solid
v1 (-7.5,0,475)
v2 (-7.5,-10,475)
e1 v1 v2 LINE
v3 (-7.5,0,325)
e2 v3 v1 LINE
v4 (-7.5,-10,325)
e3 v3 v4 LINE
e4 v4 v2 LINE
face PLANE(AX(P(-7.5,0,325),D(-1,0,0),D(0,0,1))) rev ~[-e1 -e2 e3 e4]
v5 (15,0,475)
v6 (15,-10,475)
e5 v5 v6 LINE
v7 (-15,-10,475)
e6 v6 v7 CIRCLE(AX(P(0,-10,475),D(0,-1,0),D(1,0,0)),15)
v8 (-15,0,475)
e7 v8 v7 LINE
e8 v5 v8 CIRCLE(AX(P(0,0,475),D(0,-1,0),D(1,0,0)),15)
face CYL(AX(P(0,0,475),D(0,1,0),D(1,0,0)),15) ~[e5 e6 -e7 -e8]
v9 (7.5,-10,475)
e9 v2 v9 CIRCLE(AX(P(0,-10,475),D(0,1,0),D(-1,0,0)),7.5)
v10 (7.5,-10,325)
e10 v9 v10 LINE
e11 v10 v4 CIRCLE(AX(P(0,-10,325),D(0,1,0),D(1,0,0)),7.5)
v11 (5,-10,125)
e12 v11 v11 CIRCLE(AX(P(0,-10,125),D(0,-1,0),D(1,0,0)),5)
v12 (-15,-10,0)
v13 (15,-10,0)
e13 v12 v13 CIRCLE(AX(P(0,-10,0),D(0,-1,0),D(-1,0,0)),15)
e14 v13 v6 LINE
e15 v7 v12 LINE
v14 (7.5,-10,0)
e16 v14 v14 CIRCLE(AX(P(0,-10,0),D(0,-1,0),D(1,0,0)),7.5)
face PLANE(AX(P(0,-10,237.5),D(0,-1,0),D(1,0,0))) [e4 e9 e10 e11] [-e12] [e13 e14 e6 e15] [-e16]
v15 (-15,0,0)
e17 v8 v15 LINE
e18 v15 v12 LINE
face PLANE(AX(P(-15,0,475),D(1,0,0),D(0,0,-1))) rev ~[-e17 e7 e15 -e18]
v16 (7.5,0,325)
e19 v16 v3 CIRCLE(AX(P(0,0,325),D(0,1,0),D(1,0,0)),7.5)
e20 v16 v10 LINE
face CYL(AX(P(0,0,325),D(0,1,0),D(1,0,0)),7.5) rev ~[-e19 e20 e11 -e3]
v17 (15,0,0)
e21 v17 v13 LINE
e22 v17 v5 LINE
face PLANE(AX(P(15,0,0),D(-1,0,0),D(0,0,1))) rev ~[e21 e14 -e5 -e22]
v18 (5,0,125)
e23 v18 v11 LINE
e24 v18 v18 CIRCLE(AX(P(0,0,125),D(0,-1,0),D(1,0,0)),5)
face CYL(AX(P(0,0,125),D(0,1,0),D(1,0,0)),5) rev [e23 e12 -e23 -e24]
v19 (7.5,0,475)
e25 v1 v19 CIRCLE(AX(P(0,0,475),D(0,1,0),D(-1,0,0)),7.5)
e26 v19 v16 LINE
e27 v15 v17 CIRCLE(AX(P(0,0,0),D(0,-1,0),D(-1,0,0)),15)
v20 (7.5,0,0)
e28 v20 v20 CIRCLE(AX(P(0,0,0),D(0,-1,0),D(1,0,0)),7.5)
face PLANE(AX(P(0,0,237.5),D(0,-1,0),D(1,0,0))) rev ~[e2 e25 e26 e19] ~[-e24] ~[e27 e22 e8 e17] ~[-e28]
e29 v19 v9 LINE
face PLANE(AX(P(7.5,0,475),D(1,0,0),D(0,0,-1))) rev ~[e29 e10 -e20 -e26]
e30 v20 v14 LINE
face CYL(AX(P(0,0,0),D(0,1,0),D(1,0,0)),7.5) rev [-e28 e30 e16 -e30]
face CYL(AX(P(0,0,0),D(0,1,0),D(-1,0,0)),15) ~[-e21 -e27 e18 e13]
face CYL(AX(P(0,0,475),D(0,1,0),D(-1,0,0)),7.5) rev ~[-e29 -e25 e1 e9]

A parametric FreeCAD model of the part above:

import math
import FreeCAD as App
import Part
import Sketcher
from FreeCAD import Vector

doc = App.newDocument("Part")
body = doc.addObject("PartDesign::Body", "Body")

# Sketch on XZ plane
sketch1 = doc.addObject("Sketcher::SketchObject", "Sketch")
body.addObject(sketch1)
sketch1.AttachmentSupport = (doc.XZ_Plane, [""])
sketch1.MapMode = "FlatFace"
sketch1.addGeometry([
    Part.LineSegment(Vector(-15, 475, 0), Vector(-15, 0, 0)),  # 0
    Part.ArcOfCircle(Part.Circle(Vector(0, 0, 0), Vector(0, 0, 1), 15), math.radians(180), math.radians(360)),  # 1
    Part.LineSegment(Vector(15, 0, 0), Vector(15, 475, 0)),  # 2
    Part.ArcOfCircle(Part.Circle(Vector(0, 475, 0), Vector(0, 0, 1), 15), math.radians(0), math.radians(180)),  # 3
    Part.Circle(Vector(0, 0, 0), Vector(0, 0, 1), 7.5),  # 4
    Part.Circle(Vector(0, 125, 0), Vector(0, 0, 1), 5),  # 5
    Part.LineSegment(Vector(-7.5, 325, 0), Vector(-7.5, 475, 0)),  # 6
    Part.ArcOfCircle(Part.Circle(Vector(0, 475, 0), Vector(0, 0, 1), 7.5), math.radians(0), math.radians(180)),  # 7
    Part.LineSegment(Vector(7.5, 475, 0), Vector(7.5, 325, 0)),  # 8
    Part.ArcOfCircle(Part.Circle(Vector(0, 325, 0), Vector(0, 0, 1), 7.5), math.radians(180), math.radians(360)),  # 9
], False)
sketch1.addConstraint([
    Sketcher.Constraint("Tangent", 0, 2, 1, 1),
    Sketcher.Constraint("Tangent", 1, 2, 2, 1),
    Sketcher.Constraint("Tangent", 2, 2, 3, 1),
    Sketcher.Constraint("Tangent", 3, 2, 0, 1),
    Sketcher.Constraint("Tangent", 6, 2, 7, 2),
    Sketcher.Constraint("Tangent", 7, 1, 8, 1),
    Sketcher.Constraint("Tangent", 8, 2, 9, 2),
    Sketcher.Constraint("Tangent", 9, 1, 6, 1),
    Sketcher.Constraint("Vertical", 0),
    Sketcher.Constraint("Vertical", 2),
    Sketcher.Constraint("Vertical", 6),
    Sketcher.Constraint("Vertical", 8),
    Sketcher.Constraint("Coincident", 1, 3, -1, 1),
    Sketcher.Constraint("Coincident", 4, 3, -1, 1),
    Sketcher.Constraint("Coincident", 7, 3, 3, 3),
    Sketcher.Constraint("Equal", 4, 7),
    Sketcher.Constraint("PointOnObject", 5, 3, -2),
    Sketcher.Constraint("Diameter", 4, 15.0),
    Sketcher.Constraint("Diameter", 5, 10.0),
    Sketcher.Constraint("Radius", 1, 15.0),
    Sketcher.Constraint("DistanceY", 0, 2, 0, 1, 475.0),
    Sketcher.Constraint("DistanceY", 6, 1, 6, 2, 150.0),
    Sketcher.Constraint("DistanceY", -1, 1, 5, 3, 125.0),
])
pad1 = doc.addObject("PartDesign::Pad", "Pad")
body.addObject(pad1)
pad1.Profile = sketch1
pad1.Length = 10

doc.recompute()
